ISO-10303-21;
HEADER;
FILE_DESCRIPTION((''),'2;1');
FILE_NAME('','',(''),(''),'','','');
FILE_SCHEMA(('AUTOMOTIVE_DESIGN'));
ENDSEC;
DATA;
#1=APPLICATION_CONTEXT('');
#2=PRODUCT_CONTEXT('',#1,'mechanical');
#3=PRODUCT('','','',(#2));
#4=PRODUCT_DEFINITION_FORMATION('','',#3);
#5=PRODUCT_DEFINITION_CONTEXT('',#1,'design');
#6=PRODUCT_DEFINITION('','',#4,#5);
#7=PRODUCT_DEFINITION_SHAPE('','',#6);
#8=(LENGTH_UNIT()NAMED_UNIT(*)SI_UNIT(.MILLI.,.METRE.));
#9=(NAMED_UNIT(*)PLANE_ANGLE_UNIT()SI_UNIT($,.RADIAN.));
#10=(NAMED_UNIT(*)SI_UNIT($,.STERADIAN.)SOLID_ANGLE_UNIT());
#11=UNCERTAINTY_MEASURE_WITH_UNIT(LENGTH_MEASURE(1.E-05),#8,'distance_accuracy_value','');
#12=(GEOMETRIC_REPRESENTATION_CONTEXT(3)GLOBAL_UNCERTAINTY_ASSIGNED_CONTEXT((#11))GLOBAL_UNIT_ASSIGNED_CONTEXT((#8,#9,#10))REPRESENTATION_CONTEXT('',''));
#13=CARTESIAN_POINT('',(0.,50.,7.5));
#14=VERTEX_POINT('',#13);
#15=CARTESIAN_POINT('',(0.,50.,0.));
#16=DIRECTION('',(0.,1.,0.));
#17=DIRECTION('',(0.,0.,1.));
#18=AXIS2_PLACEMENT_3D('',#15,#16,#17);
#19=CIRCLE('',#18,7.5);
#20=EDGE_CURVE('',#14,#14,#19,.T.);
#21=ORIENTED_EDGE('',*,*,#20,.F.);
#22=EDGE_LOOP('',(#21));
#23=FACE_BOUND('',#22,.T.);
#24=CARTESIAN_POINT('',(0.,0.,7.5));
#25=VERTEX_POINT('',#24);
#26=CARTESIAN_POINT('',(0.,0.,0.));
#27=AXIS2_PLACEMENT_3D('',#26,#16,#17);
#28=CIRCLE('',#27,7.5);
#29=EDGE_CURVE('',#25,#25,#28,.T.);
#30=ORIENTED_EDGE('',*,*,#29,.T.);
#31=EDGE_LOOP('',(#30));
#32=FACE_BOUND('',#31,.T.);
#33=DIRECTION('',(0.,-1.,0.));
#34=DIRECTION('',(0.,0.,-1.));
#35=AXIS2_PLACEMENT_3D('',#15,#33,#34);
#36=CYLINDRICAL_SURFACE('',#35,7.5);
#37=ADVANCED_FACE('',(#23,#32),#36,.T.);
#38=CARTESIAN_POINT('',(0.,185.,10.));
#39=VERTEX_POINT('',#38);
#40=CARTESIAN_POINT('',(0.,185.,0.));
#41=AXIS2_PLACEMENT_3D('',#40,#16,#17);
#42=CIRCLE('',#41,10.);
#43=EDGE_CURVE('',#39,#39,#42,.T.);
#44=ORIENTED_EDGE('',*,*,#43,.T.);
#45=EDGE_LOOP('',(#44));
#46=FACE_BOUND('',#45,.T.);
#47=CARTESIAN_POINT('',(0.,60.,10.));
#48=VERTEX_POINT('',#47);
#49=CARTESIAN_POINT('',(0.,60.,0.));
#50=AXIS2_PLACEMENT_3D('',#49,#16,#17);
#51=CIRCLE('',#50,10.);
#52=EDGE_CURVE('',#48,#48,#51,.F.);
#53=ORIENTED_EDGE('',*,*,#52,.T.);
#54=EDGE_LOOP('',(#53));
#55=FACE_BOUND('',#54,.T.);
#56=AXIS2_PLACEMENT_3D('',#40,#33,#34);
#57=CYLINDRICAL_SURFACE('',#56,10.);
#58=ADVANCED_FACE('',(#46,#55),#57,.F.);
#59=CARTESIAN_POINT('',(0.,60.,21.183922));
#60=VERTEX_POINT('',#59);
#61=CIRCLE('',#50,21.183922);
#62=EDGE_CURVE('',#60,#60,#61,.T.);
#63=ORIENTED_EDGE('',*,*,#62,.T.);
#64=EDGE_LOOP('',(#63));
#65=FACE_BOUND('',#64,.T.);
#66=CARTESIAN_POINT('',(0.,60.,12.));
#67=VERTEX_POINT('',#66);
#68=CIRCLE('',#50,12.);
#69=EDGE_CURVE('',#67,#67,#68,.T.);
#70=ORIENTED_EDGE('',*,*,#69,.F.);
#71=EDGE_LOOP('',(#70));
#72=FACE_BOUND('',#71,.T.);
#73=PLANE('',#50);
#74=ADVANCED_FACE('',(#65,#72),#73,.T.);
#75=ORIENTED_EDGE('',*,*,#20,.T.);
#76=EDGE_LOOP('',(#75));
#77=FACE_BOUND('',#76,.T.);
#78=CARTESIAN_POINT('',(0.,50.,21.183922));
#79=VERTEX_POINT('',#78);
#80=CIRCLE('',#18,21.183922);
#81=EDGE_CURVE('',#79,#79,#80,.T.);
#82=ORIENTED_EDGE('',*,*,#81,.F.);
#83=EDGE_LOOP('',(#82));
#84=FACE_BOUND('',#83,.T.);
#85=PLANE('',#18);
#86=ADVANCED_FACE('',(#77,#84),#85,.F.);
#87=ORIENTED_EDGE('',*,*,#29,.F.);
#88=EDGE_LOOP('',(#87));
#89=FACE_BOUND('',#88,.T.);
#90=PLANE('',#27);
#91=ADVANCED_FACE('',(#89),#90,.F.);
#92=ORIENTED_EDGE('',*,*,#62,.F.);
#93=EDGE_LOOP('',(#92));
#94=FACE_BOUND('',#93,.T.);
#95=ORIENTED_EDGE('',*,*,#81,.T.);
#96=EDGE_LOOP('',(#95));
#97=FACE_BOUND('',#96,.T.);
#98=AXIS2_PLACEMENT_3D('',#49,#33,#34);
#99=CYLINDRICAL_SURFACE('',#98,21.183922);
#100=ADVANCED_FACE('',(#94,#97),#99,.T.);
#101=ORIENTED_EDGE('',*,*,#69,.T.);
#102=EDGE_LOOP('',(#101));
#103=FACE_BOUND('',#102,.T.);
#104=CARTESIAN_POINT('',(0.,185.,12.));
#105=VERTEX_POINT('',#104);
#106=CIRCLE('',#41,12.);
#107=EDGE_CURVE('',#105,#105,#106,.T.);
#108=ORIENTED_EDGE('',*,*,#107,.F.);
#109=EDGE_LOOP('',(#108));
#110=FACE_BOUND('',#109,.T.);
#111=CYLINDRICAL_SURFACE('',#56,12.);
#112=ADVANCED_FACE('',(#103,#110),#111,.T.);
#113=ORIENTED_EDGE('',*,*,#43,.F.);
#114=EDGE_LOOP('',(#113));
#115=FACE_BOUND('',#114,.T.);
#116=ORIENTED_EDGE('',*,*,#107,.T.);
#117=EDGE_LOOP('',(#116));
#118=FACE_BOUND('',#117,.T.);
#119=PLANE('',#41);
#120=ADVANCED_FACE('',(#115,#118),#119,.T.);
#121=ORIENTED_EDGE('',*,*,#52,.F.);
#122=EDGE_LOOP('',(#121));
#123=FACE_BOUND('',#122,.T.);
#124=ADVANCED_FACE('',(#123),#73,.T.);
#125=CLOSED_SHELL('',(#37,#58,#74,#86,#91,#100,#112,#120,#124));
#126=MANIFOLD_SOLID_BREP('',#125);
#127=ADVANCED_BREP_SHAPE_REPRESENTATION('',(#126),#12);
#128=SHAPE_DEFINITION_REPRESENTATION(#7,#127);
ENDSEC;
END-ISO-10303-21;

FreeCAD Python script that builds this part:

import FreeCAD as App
import Part
import Sketcher
Q = App.Units.Quantity

doc = App.newDocument("Part")
body = doc.addObject("PartDesign::Body", "Body")

sketch1 = doc.addObject("Sketcher::SketchObject", "Sketch")
body.addObject(sketch1)
sketch1.AttachmentSupport = (doc.XZ_Plane, [""])
sketch1.MapMode = "FlatFace"
sketch1.addGeometry(Part.Circle(App.Vector(0, 0, 0), App.Vector(0, 0, 1), 7.5), False)
sketch1.addConstraint([
    Sketcher.Constraint("Coincident", 0, 3, -1, 1),
    Sketcher.Constraint("Diameter", 0, Q("15 mm")),
])
pad1 = doc.addObject("PartDesign::Pad", "Pad")
body.addObject(pad1)
pad1.Profile = sketch1
pad1.Length = 50
pad1.Reversed = True

sketch2 = doc.addObject("Sketcher::SketchObject", "Sketch001")
body.addObject(sketch2)
sketch2.AttachmentSupport = (doc.XZ_Plane, [""])
sketch2.MapMode = "FlatFace"
sketch2.AttachmentOffset = App.Placement(App.Vector(0, 0, -50), App.Rotation())
sketch2.addGeometry(Part.Circle(App.Vector(0, 0, 0), App.Vector(0, 0, 1), 21.183922), False)
sketch2.addConstraint([
    Sketcher.Constraint("Coincident", 0, 3, -1, 1),
    Sketcher.Constraint("Diameter", 0, Q("42.367843 mm")),
])
pad2 = doc.addObject("PartDesign::Pad", "Pad001")
body.addObject(pad2)
pad2.Profile = sketch2
pad2.Length = 10
pad2.Reversed = True

sketch3 = doc.addObject("Sketcher::SketchObject", "Sketch002")
body.addObject(sketch3)
sketch3.AttachmentSupport = (doc.XZ_Plane, [""])
sketch3.MapMode = "FlatFace"
sketch3.AttachmentOffset = App.Placement(App.Vector(0, 0, -60), App.Rotation())
sketch3.addGeometry([
    Part.Circle(App.Vector(0, 0, 0), App.Vector(0, 0, 1), 12),
    Part.Circle(App.Vector(0, 0, 0), App.Vector(0, 0, 1), 10),
], False)
sketch3.addConstraint([
    Sketcher.Constraint("Coincident", 0, 3, -1, 1),
    Sketcher.Constraint("Coincident", 1, 3, -1, 1),
    Sketcher.Constraint("Diameter", 0, Q("24 mm")),
    Sketcher.Constraint("Diameter", 1, Q("20 mm")),
])
pad3 = doc.addObject("PartDesign::Pad", "Pad002")
body.addObject(pad3)
pad3.Profile = sketch3
pad3.Length = 125
pad3.Reversed = True

doc.recompute()
